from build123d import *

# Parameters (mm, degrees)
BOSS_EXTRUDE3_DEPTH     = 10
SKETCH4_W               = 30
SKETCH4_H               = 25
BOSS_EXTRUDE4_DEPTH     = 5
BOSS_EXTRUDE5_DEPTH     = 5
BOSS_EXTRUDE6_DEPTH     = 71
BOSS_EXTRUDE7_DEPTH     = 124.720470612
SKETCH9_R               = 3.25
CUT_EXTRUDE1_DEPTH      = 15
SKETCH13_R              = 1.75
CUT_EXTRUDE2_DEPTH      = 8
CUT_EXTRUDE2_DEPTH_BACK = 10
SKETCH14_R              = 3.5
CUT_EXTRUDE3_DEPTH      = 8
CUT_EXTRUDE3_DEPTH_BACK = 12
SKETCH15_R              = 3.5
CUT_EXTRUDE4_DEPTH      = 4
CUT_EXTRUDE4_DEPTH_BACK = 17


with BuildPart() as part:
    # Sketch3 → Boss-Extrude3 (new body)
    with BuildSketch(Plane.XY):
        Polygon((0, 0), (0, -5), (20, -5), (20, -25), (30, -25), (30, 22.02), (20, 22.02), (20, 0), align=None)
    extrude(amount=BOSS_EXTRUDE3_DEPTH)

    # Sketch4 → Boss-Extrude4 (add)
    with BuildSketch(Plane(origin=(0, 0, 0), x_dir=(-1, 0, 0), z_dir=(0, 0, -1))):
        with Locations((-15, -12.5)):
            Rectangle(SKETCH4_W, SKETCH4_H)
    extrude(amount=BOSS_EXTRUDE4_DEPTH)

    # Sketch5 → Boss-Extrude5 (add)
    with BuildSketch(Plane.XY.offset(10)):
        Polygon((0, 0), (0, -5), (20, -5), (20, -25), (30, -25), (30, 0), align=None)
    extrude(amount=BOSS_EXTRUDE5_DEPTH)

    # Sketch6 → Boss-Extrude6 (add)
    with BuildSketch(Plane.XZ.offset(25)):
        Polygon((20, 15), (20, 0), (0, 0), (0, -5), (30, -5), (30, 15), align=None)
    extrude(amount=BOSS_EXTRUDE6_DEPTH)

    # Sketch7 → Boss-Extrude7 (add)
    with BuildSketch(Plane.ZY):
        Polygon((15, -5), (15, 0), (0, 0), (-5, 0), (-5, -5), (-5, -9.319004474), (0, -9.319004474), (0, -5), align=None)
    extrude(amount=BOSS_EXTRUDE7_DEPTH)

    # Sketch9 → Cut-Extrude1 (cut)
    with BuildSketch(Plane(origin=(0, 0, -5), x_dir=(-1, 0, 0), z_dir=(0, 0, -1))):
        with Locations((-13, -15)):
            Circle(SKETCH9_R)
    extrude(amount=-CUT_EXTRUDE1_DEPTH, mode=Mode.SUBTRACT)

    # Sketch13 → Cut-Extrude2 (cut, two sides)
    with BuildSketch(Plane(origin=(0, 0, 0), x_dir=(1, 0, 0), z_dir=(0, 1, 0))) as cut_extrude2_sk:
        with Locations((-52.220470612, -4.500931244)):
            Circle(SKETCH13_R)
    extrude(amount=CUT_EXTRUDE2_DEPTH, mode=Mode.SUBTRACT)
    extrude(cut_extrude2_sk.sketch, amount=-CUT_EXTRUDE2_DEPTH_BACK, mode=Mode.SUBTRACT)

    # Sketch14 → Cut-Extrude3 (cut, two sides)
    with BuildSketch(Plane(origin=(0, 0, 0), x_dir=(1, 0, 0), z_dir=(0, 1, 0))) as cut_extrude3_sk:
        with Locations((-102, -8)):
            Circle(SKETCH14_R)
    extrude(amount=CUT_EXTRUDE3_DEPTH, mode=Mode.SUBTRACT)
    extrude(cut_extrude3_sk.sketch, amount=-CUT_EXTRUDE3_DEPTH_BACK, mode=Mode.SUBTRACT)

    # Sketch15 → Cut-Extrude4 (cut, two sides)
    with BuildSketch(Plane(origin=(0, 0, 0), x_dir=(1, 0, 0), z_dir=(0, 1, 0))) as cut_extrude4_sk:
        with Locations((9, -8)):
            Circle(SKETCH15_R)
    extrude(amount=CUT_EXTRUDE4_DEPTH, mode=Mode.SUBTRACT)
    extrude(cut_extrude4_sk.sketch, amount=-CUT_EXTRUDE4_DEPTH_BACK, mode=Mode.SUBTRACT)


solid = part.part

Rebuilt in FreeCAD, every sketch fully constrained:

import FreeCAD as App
import Part
import Sketcher

doc = App.newDocument("Part")
body = doc.addObject("PartDesign::Body", "Body")

# Sketch on XY plane
sketch1 = body.newObject("Sketcher::SketchObject", "Sketch")
sketch1.AttachmentSupport = (doc.getObject("XY_Plane"), [""])
sketch1.MapMode = "FlatFace"
sketch1.addGeometry(Part.LineSegment(App.Vector(0, 0, 0), App.Vector(0, -5, 0)), False)
sketch1.addGeometry(Part.LineSegment(App.Vector(0, -5, 0), App.Vector(20, -5, 0)), False)
sketch1.addGeometry(Part.LineSegment(App.Vector(20, -5, 0), App.Vector(20, -25, 0)), False)
sketch1.addGeometry(Part.LineSegment(App.Vector(20, -25, 0), App.Vector(30, -25, 0)), False)
sketch1.addGeometry(Part.LineSegment(App.Vector(30, -25, 0), App.Vector(30, 22, 0)), False)
sketch1.addGeometry(Part.LineSegment(App.Vector(30, 22, 0), App.Vector(20, 22, 0)), False)
sketch1.addGeometry(Part.LineSegment(App.Vector(20, 22, 0), App.Vector(20, 0, 0)), False)
sketch1.addGeometry(Part.LineSegment(App.Vector(20, 0, 0), App.Vector(0, 0, 0)), False)
sketch1.addConstraint(Sketcher.Constraint("Coincident", 0, 2, 1, 1))
sketch1.addConstraint(Sketcher.Constraint("Coincident", 1, 2, 2, 1))
sketch1.addConstraint(Sketcher.Constraint("Coincident", 2, 2, 3, 1))
sketch1.addConstraint(Sketcher.Constraint("Coincident", 3, 2, 4, 1))
sketch1.addConstraint(Sketcher.Constraint("Coincident", 4, 2, 5, 1))
sketch1.addConstraint(Sketcher.Constraint("Coincident", 5, 2, 6, 1))
sketch1.addConstraint(Sketcher.Constraint("Coincident", 6, 2, 7, 1))
sketch1.addConstraint(Sketcher.Constraint("Coincident", 7, 2, 0, 1))
sketch1.addConstraint(Sketcher.Constraint("Vertical", 0))
sketch1.addConstraint(Sketcher.Constraint("Horizontal", 1))
sketch1.addConstraint(Sketcher.Constraint("Vertical", 2))
sketch1.addConstraint(Sketcher.Constraint("Horizontal", 3))
sketch1.addConstraint(Sketcher.Constraint("Vertical", 4))
sketch1.addConstraint(Sketcher.Constraint("Horizontal", 5))
sketch1.addConstraint(Sketcher.Constraint("Vertical", 6))
sketch1.addConstraint(Sketcher.Constraint("Horizontal", 7))
sketch1.addConstraint(Sketcher.Constraint("Coincident", 7, 2, -1, 1))
sketch1.addConstraint(Sketcher.Constraint("Vertical", 2, 2, 5, 2))
sketch1.addConstraint(Sketcher.Constraint("Equal", 7, 2))
sketch1.addConstraint(Sketcher.Constraint("DistanceX", 1, 1, 1, 2, 20.0))
sketch1.addConstraint(Sketcher.Constraint("DistanceX", 3, 1, 3, 2, 10.0))
sketch1.addConstraint(Sketcher.Constraint("DistanceY", 0, 2, 0, 1, 5.0))
sketch1.addConstraint(Sketcher.Constraint("DistanceY", 4, 1, 4, 2, 47.02))
pad1 = body.newObject("PartDesign::Pad", "Pad")
pad1.Profile = sketch1
pad1.Length = 10

# Sketch on XY plane
sketch2 = body.newObject("Sketcher::SketchObject", "Sketch001")
sketch2.AttachmentSupport = (doc.getObject("XY_Plane"), [""])
sketch2.MapMode = "FlatFace"
sketch2.addGeometry(Part.LineSegment(App.Vector(30, 0, 0), App.Vector(30, -25, 0)), False)
sketch2.addGeometry(Part.LineSegment(App.Vector(30, -25, 0), App.Vector(0, -25, 0)), False)
sketch2.addGeometry(Part.LineSegment(App.Vector(0, -25, 0), App.Vector(0, 0, 0)), False)
sketch2.addGeometry(Part.LineSegment(App.Vector(0, 0, 0), App.Vector(30, 0, 0)), False)
sketch2.addConstraint(Sketcher.Constraint("Coincident", 0, 2, 1, 1))
sketch2.addConstraint(Sketcher.Constraint("Coincident", 1, 2, 2, 1))
sketch2.addConstraint(Sketcher.Constraint("Coincident", 2, 2, 3, 1))
sketch2.addConstraint(Sketcher.Constraint("Coincident", 3, 2, 0, 1))
sketch2.addConstraint(Sketcher.Constraint("Vertical", 0))
sketch2.addConstraint(Sketcher.Constraint("Horizontal", 1))
sketch2.addConstraint(Sketcher.Constraint("Vertical", 2))
sketch2.addConstraint(Sketcher.Constraint("Horizontal", 3))
sketch2.addConstraint(Sketcher.Constraint("Coincident", 2, 2, -1, 1))
sketch2.addConstraint(Sketcher.Constraint("DistanceX", 1, 2, 1, 1, 30.0))
sketch2.addConstraint(Sketcher.Constraint("DistanceY", 0, 2, 0, 1, 25.0))
pad2 = body.newObject("PartDesign::Pad", "Pad001")
pad2.Profile = sketch2
pad2.Length = 5
pad2.Reversed = True

# Sketch on XY plane
sketch3 = body.newObject("Sketcher::SketchObject", "Sketch002")
sketch3.AttachmentSupport = (doc.getObject("XY_Plane"), [""])
sketch3.MapMode = "FlatFace"
sketch3.AttachmentOffset = App.Placement(App.Vector(0, 0, 10), App.Rotation())
sketch3.addGeometry(Part.LineSegment(App.Vector(0, 0, 0), App.Vector(0, -5, 0)), False)
sketch3.addGeometry(Part.LineSegment(App.Vector(0, -5, 0), App.Vector(20, -5, 0)), False)
sketch3.addGeometry(Part.LineSegment(App.Vector(20, -5, 0), App.Vector(20, -25, 0)), False)
sketch3.addGeometry(Part.LineSegment(App.Vector(20, -25, 0), App.Vector(30, -25, 0)), False)
sketch3.addGeometry(Part.LineSegment(App.Vector(30, -25, 0), App.Vector(30, 0, 0)), False)
sketch3.addGeometry(Part.LineSegment(App.Vector(30, 0, 0), App.Vector(0, 0, 0)), False)
sketch3.addConstraint(Sketcher.Constraint("Coincident", 0, 2, 1, 1))
sketch3.addConstraint(Sketcher.Constraint("Coincident", 1, 2, 2, 1))
sketch3.addConstraint(Sketcher.Constraint("Coincident", 2, 2, 3, 1))
sketch3.addConstraint(Sketcher.Constraint("Coincident", 3, 2, 4, 1))
sketch3.addConstraint(Sketcher.Constraint("Coincident", 4, 2, 5, 1))
sketch3.addConstraint(Sketcher.Constraint("Coincident", 5, 2, 0, 1))
sketch3.addConstraint(Sketcher.Constraint("Vertical", 0))
sketch3.addConstraint(Sketcher.Constraint("Horizontal", 1))
sketch3.addConstraint(Sketcher.Constraint("Vertical", 2))
sketch3.addConstraint(Sketcher.Constraint("Horizontal", 3))
sketch3.addConstraint(Sketcher.Constraint("Vertical", 4))
sketch3.addConstraint(Sketcher.Constraint("Horizontal", 5))
sketch3.addConstraint(Sketcher.Constraint("Coincident", 5, 2, -1, 1))
sketch3.addConstraint(Sketcher.Constraint("Equal", 1, 2))
sketch3.addConstraint(Sketcher.Constraint("DistanceX", 1, 1, 1, 2, 20.0))
sketch3.addConstraint(Sketcher.Constraint("DistanceX", 3, 1, 3, 2, 10.0))
sketch3.addConstraint(Sketcher.Constraint("DistanceY", 0, 2, 0, 1, 5.0))
pad3 = body.newObject("PartDesign::Pad", "Pad002")
pad3.Profile = sketch3
pad3.Length = 5

# Sketch on XZ plane
sketch4 = body.newObject("Sketcher::SketchObject", "Sketch003")
sketch4.AttachmentSupport = (doc.getObject("XZ_Plane"), [""])
sketch4.MapMode = "FlatFace"
sketch4.AttachmentOffset = App.Placement(App.Vector(0, 0, 25), App.Rotation())
sketch4.addGeometry(Part.LineSegment(App.Vector(20, 15, 0), App.Vector(20, 0, 0)), False)
sketch4.addGeometry(Part.LineSegment(App.Vector(20, 0, 0), App.Vector(0, 0, 0)), False)
sketch4.addGeometry(Part.LineSegment(App.Vector(0, 0, 0), App.Vector(0, -5, 0)), False)
sketch4.addGeometry(Part.LineSegment(App.Vector(0, -5, 0), App.Vector(30, -5, 0)), False)
sketch4.addGeometry(Part.LineSegment(App.Vector(30, -5, 0), App.Vector(30, 15, 0)), False)
sketch4.addGeometry(Part.LineSegment(App.Vector(30, 15, 0), App.Vector(20, 15, 0)), False)
sketch4.addConstraint(Sketcher.Constraint("Coincident", 0, 2, 1, 1))
sketch4.addConstraint(Sketcher.Constraint("Coincident", 1, 2, 2, 1))
sketch4.addConstraint(Sketcher.Constraint("Coincident", 2, 2, 3, 1))
sketch4.addConstraint(Sketcher.Constraint("Coincident", 3, 2, 4, 1))
sketch4.addConstraint(Sketcher.Constraint("Coincident", 4, 2, 5, 1))
sketch4.addConstraint(Sketcher.Constraint("Coincident", 5, 2, 0, 1))
sketch4.addConstraint(Sketcher.Constraint("Vertical", 0))
sketch4.addConstraint(Sketcher.Constraint("Horizontal", 1))
sketch4.addConstraint(Sketcher.Constraint("Vertical", 2))
sketch4.addConstraint(Sketcher.Constraint("Horizontal", 3))
sketch4.addConstraint(Sketcher.Constraint("Vertical", 4))
sketch4.addConstraint(Sketcher.Constraint("Horizontal", 5))
sketch4.addConstraint(Sketcher.Constraint("Coincident", 1, 2, -1, 1))
sketch4.addConstraint(Sketcher.Constraint("Equal", 1, 4))
sketch4.addConstraint(Sketcher.Constraint("DistanceX", 1, 2, 1, 1, 20.0))
sketch4.addConstraint(Sketcher.Constraint("DistanceX", 3, 1, 3, 2, 30.0))
sketch4.addConstraint(Sketcher.Constraint("DistanceY", 0, 2, 0, 1, 15.0))
pad4 = body.newObject("PartDesign::Pad", "Pad003")
pad4.Profile = sketch4
pad4.Length = 71

# Sketch on YZ plane
sketch5 = body.newObject("Sketcher::SketchObject", "Sketch004")
sketch5.AttachmentSupport = (doc.getObject("YZ_Plane"), [""])
sketch5.MapMode = "FlatFace"
sketch5.addGeometry(Part.LineSegment(App.Vector(-5, 15, 0), App.Vector(0, 15, 0)), False)
sketch5.addGeometry(Part.LineSegment(App.Vector(0, 15, 0), App.Vector(0, -5, 0)), False)
sketch5.addGeometry(Part.LineSegment(App.Vector(0, -5, 0), App.Vector(-9.3, -5, 0)), False)
sketch5.addGeometry(Part.LineSegment(App.Vector(-9.3, -5, 0), App.Vector(-9.3, 0, 0)), False)
sketch5.addGeometry(Part.LineSegment(App.Vector(-9.3, 0, 0), App.Vector(-5, 0, 0)), False)
sketch5.addGeometry(Part.LineSegment(App.Vector(-5, 0, 0), App.Vector(-5, 15, 0)), False)
sketch5.addConstraint(Sketcher.Constraint("Coincident", 0, 2, 1, 1))
sketch5.addConstraint(Sketcher.Constraint("Coincident", 1, 2, 2, 1))
sketch5.addConstraint(Sketcher.Constraint("Coincident", 2, 2, 3, 1))
sketch5.addConstraint(Sketcher.Constraint("Coincident", 3, 2, 4, 1))
sketch5.addConstraint(Sketcher.Constraint("Coincident", 4, 2, 5, 1))
sketch5.addConstraint(Sketcher.Constraint("Coincident", 5, 2, 0, 1))
sketch5.addConstraint(Sketcher.Constraint("Horizontal", 0))
sketch5.addConstraint(Sketcher.Constraint("Vertical", 1))
sketch5.addConstraint(Sketcher.Constraint("Horizontal", 2))
sketch5.addConstraint(Sketcher.Constraint("Vertical", 3))
sketch5.addConstraint(Sketcher.Constraint("Horizontal", 4))
sketch5.addConstraint(Sketcher.Constraint("Vertical", 5))
sketch5.addConstraint(Sketcher.Constraint("PointOnObject", 0, 2, -2))
sketch5.addConstraint(Sketcher.Constraint("PointOnObject", 3, 2, -1))
sketch5.addConstraint(Sketcher.Constraint("Equal", 0, 3))
sketch5.addConstraint(Sketcher.Constraint("DistanceX", 0, 1, 0, 2, 5.0))
sketch5.addConstraint(Sketcher.Constraint("DistanceY", 1, 2, 1, 1, 20.0))
sketch5.addConstraint(Sketcher.Constraint("DistanceX", 2, 2, 2, 1, 9.319004))
pad5 = body.newObject("PartDesign::Pad", "Pad004")
pad5.Profile = sketch5
pad5.Length = 124.720471
pad5.Reversed = True

# Sketch on XY plane
sketch6 = body.newObject("Sketcher::SketchObject", "Sketch005")
sketch6.AttachmentSupport = (doc.getObject("XY_Plane"), [""])
sketch6.MapMode = "FlatFace"
sketch6.AttachmentOffset = App.Placement(App.Vector(0, 0, -5), App.Rotation())
sketch6.addGeometry(Part.Circle(App.Vector(13, -15, 0), App.Vector(0, 0, 1), 3.2), False)
sketch6.addConstraint(Sketcher.Constraint("Diameter", 0, 6.5))
sketch6.addConstraint(Sketcher.Constraint("DistanceX", -1, 1, 0, 3, 13.0))
sketch6.addConstraint(Sketcher.Constraint("DistanceY", 0, 3, -1, 1, 15.0))
pocket1 = body.newObject("PartDesign::Pocket", "Pocket")
pocket1.Profile = sketch6
pocket1.Length = 15
pocket1.Reversed = True

# Sketch on XZ plane
sketch7 = body.newObject("Sketcher::SketchObject", "Sketch006")
sketch7.AttachmentSupport = (doc.getObject("XZ_Plane"), [""])
sketch7.MapMode = "FlatFace"
sketch7.addGeometry(Part.Circle(App.Vector(-52.2, 4.5, 0), App.Vector(0, 0, 1), 1.8), False)
sketch7.addConstraint(Sketcher.Constraint("Diameter", 0, 3.5))
sketch7.addConstraint(Sketcher.Constraint("DistanceX", 0, 3, -1, 1, 52.220471))
sketch7.addConstraint(Sketcher.Constraint("DistanceY", -1, 1, 0, 3, 4.500931))
pocket2 = body.newObject("PartDesign::Pocket", "Pocket001")
pocket2.Profile = sketch7
pocket2.Type = "ThroughAll"
pocket2.Midplane = True

# Sketch on XZ plane
sketch8 = body.newObject("Sketcher::SketchObject", "Sketch007")
sketch8.AttachmentSupport = (doc.getObject("XZ_Plane"), [""])
sketch8.MapMode = "FlatFace"
sketch8.addGeometry(Part.Circle(App.Vector(-102, 8, 0), App.Vector(0, 0, 1), 3.5), False)
sketch8.addConstraint(Sketcher.Constraint("Diameter", 0, 7.0))
sketch8.addConstraint(Sketcher.Constraint("DistanceX", 0, 3, -1, 1, 102.0))
sketch8.addConstraint(Sketcher.Constraint("DistanceY", -1, 1, 0, 3, 8.0))
pocket3 = body.newObject("PartDesign::Pocket", "Pocket002")
pocket3.Profile = sketch8
pocket3.Type = "ThroughAll"
pocket3.Midplane = True

# Sketch on XZ plane
sketch9 = body.newObject("Sketcher::SketchObject", "Sketch008")
sketch9.AttachmentSupport = (doc.getObject("XZ_Plane"), [""])
sketch9.MapMode = "FlatFace"
sketch9.addGeometry(Part.Circle(App.Vector(9, 8, 0), App.Vector(0, 0, 1), 3.5), False)
sketch9.addConstraint(Sketcher.Constraint("Diameter", 0, 7.0))
sketch9.addConstraint(Sketcher.Constraint("DistanceX", -1, 1, 0, 3, 9.0))
sketch9.addConstraint(Sketcher.Constraint("DistanceY", -1, 1, 0, 3, 8.0))
pocket4 = body.newObject("PartDesign::Pocket", "Pocket003")
pocket4.Profile = sketch9
pocket4.Type = "ThroughAll"
pocket4.Midplane = True

doc.recompute()
